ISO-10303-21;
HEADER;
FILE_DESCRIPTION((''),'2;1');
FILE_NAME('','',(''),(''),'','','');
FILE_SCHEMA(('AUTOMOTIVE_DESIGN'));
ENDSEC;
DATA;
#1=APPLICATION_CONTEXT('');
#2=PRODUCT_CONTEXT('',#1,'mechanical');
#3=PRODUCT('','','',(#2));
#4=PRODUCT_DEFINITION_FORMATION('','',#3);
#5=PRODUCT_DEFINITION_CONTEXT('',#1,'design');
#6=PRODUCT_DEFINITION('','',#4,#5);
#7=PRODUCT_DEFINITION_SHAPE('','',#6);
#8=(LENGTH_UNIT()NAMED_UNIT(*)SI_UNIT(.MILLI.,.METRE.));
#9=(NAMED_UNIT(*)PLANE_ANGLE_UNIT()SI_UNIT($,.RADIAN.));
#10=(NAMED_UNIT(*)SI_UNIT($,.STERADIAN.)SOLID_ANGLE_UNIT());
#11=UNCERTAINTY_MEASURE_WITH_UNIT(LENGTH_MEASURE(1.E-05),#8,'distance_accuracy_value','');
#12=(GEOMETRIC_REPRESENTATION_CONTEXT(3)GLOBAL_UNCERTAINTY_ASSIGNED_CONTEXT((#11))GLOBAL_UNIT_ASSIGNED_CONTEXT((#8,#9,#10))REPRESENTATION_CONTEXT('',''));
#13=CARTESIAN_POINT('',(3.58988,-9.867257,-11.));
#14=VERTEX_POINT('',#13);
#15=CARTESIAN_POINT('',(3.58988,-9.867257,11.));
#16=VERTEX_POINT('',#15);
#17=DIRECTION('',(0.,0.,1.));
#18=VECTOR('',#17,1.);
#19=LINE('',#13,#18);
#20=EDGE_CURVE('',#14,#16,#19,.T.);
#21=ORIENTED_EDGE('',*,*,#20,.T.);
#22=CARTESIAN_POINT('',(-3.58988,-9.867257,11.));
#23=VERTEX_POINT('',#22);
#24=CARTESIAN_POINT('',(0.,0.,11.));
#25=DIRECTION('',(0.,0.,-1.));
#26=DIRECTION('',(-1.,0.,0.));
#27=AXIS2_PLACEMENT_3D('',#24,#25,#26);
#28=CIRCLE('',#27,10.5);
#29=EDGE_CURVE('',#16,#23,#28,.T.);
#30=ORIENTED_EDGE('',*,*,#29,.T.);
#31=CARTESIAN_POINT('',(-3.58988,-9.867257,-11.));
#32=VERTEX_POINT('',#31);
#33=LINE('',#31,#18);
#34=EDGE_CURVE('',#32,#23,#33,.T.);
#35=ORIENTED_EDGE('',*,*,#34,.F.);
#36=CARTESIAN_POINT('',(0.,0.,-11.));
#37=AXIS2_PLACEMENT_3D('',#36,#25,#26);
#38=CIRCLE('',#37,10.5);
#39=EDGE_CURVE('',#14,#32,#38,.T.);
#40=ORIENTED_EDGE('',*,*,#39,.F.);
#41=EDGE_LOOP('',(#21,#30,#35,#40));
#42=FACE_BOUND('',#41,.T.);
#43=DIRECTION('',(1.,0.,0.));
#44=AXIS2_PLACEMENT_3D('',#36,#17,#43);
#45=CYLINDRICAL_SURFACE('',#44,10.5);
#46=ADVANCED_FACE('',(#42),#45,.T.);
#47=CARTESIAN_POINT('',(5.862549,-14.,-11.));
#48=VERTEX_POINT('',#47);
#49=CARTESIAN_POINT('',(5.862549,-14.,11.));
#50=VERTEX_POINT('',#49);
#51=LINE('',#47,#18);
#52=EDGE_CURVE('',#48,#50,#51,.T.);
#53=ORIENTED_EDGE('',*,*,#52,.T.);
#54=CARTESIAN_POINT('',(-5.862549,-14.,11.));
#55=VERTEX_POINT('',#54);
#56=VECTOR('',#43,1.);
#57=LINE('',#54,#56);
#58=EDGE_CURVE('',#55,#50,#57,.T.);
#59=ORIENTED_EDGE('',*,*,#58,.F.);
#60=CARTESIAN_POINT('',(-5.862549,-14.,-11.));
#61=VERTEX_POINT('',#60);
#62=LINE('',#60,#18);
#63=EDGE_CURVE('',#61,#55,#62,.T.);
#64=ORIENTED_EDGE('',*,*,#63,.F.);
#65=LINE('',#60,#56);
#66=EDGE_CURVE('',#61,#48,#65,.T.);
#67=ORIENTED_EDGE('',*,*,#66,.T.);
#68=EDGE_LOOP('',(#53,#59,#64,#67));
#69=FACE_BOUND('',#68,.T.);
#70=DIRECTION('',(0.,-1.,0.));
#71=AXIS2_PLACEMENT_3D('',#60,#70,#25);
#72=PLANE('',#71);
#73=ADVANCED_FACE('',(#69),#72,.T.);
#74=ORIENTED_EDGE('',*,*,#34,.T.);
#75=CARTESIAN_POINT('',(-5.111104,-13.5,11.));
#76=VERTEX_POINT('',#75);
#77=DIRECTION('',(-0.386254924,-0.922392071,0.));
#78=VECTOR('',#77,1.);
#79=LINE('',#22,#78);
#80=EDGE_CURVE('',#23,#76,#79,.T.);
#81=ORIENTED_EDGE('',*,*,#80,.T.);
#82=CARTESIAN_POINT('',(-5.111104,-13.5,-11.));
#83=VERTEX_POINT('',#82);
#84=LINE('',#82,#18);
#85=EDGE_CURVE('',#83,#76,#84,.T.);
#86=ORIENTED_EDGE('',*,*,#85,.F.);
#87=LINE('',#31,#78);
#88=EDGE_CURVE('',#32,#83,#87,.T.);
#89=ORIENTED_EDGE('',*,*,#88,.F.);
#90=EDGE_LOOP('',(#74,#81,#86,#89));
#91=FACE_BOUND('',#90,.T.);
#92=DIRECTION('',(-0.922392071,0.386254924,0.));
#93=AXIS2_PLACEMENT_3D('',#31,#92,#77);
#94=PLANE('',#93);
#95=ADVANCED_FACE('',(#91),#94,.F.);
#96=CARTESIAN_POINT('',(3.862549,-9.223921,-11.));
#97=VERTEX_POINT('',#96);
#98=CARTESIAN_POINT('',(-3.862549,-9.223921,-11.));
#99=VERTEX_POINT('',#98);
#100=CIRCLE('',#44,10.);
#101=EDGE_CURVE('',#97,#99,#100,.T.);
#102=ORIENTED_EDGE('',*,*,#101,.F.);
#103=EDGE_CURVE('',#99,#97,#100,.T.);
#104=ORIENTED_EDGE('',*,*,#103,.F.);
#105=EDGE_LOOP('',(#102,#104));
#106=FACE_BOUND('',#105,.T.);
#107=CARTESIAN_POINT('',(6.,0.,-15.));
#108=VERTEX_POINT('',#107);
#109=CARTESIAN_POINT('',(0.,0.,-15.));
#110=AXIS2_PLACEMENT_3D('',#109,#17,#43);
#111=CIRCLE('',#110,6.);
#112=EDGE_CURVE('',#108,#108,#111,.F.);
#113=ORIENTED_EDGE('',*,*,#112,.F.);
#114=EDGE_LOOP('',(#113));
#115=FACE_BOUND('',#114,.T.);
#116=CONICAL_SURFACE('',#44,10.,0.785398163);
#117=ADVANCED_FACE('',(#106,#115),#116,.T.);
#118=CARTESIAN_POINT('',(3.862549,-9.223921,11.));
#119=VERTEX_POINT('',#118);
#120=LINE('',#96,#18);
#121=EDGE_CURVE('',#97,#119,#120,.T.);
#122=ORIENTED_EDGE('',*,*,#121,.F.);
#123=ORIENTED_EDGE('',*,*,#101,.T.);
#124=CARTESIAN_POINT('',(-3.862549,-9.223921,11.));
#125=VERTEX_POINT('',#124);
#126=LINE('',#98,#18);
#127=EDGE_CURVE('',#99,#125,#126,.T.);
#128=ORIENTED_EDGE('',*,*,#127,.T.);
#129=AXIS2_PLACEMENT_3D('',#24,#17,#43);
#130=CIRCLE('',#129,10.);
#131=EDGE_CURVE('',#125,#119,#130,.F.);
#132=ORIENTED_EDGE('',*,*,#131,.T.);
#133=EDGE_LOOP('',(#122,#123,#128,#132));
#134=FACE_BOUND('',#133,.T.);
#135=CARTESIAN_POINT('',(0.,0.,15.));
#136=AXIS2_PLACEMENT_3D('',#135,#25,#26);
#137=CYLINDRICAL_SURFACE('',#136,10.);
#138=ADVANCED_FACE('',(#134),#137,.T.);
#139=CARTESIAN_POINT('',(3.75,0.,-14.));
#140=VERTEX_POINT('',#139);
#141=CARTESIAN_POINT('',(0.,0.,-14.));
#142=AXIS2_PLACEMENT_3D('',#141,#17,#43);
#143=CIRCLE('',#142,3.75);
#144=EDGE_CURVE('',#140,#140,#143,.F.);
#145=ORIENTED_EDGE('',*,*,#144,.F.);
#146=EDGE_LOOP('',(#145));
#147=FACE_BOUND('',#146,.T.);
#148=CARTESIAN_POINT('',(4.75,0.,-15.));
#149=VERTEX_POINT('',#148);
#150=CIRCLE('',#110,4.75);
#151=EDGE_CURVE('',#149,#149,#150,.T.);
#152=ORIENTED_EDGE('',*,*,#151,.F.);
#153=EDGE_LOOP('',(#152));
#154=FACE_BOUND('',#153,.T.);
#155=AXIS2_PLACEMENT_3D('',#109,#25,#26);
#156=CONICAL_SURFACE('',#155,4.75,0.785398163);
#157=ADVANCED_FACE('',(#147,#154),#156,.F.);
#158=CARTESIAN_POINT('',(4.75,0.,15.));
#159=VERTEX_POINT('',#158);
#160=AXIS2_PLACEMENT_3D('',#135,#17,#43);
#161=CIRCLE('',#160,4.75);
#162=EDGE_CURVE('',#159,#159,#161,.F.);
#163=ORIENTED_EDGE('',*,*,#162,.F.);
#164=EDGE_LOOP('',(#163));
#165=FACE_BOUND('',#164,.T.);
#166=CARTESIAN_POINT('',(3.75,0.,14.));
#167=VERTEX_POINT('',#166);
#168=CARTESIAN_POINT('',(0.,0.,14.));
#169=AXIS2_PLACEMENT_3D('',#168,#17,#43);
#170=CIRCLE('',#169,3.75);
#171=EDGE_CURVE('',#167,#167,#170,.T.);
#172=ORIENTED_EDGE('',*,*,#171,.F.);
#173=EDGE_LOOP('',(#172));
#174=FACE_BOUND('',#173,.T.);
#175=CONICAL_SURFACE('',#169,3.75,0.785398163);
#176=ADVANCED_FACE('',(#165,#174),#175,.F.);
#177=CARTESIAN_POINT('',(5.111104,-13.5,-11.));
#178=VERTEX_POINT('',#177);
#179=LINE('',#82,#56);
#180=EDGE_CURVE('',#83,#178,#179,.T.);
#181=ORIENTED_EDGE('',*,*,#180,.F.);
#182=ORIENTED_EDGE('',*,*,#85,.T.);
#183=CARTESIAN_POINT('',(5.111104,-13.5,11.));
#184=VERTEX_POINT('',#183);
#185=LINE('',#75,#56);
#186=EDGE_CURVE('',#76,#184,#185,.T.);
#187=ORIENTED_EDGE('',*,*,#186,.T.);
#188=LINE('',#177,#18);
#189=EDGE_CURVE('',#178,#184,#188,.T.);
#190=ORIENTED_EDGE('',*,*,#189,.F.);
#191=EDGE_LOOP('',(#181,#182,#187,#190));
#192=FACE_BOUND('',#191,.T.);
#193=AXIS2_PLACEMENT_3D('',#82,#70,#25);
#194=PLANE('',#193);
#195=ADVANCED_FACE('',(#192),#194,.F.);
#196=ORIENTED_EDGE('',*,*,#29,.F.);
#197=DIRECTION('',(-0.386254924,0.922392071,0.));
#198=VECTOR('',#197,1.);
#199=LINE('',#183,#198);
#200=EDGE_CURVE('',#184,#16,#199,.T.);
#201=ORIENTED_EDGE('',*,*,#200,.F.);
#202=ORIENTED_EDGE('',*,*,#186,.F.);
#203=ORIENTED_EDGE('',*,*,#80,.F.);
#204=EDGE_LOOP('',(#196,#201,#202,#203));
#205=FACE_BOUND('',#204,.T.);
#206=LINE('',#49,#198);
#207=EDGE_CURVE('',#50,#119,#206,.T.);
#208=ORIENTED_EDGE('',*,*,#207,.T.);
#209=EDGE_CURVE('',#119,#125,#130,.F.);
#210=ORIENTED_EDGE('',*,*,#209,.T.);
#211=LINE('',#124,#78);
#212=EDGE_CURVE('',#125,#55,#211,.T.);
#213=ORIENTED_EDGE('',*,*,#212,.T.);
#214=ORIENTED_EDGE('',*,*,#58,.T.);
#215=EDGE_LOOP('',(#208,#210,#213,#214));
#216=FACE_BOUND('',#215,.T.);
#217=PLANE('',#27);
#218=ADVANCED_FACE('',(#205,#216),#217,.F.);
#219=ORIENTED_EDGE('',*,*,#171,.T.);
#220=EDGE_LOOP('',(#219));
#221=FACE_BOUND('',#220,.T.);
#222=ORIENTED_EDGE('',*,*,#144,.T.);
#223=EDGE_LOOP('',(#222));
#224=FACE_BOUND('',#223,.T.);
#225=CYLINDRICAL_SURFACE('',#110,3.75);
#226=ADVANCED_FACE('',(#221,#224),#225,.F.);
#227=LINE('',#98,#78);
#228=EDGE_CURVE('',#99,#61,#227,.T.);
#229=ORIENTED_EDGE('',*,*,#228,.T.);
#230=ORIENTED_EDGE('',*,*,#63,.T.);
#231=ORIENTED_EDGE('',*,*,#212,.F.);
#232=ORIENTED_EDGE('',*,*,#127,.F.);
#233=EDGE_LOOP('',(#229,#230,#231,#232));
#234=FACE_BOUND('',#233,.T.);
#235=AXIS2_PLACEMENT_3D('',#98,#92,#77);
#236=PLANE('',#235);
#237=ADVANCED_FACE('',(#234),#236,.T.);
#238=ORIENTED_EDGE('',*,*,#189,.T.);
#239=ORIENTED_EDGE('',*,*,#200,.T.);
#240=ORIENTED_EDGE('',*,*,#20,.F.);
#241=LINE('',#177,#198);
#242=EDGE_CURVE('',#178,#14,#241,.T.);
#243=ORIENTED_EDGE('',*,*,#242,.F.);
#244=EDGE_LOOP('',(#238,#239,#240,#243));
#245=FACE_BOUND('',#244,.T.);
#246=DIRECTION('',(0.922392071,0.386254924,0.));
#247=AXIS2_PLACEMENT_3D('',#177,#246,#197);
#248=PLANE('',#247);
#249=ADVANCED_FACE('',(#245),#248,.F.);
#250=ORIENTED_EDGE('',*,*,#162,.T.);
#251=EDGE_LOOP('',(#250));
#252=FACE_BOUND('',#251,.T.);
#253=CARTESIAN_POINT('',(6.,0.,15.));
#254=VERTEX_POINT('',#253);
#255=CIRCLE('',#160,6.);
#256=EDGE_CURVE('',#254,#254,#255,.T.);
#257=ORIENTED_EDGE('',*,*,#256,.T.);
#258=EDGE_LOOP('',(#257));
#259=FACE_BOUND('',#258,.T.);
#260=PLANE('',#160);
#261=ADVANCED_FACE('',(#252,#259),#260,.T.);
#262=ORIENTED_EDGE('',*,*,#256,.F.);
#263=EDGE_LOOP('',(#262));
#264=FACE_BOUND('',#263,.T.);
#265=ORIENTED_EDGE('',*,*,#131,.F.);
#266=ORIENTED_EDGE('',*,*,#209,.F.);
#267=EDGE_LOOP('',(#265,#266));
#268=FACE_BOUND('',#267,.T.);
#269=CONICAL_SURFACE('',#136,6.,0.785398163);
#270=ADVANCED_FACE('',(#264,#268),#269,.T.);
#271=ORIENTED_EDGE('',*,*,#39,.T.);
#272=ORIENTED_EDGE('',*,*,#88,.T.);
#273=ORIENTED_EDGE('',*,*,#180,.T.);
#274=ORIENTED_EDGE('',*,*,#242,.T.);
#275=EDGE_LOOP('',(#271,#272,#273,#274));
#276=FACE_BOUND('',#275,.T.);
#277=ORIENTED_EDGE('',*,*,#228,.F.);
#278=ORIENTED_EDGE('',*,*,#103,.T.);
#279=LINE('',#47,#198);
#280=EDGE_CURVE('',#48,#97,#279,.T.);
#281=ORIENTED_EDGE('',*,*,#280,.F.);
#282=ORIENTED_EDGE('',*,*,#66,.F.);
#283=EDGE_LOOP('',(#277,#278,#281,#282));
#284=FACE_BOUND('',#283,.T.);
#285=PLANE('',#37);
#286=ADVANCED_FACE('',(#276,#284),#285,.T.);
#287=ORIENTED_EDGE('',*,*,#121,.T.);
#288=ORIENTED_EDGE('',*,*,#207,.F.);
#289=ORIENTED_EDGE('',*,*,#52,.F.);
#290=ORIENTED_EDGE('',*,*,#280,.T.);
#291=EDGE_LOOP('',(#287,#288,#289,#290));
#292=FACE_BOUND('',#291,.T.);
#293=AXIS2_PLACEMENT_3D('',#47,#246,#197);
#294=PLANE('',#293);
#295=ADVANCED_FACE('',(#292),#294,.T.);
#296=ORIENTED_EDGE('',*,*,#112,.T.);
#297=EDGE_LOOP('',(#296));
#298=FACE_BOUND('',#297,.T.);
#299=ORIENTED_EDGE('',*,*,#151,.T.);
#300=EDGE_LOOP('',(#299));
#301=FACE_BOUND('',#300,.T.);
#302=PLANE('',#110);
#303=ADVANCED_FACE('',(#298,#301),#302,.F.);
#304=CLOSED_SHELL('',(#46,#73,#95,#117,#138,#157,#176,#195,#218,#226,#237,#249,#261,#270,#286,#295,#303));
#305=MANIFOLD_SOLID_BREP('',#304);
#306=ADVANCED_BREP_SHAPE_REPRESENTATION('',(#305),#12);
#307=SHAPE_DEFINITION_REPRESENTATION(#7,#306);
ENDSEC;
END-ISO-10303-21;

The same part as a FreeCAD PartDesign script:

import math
import FreeCAD as App
import Part
import Sketcher

V = App.Vector
Q = App.Units.Quantity


def edges_at(feature, points):
    """Names of the edges that pass closest to the given points."""
    edges = feature.Shape.Edges
    near = lambda p: min(range(len(edges)), key=lambda i: edges[i].distToShape(Part.Vertex(*p))[0])
    return sorted({f"Edge{near(p) + 1}" for p in points})

doc = App.newDocument("Part")
body = doc.addObject("PartDesign::Body", "Body")

sketch1 = body.newObject("Sketcher::SketchObject", "Sketch")
sketch1.AttachmentSupport = (doc.getObject("XY_Plane"), [""])
sketch1.MapMode = "FlatFace"
sketch1.addGeometry(Part.Circle(V(0, 0, 0), V(0, 0, 1), 10), False)
sketch1.addConstraint([
    Sketcher.Constraint("Coincident", 0, 3, -1, 1),
    Sketcher.Constraint("Diameter", 0, Q("20 mm")),
])
pad1 = body.newObject("PartDesign::Pad", "Pad")
pad1.Profile = sketch1
pad1.Length = 30
pad1.Midplane = True
doc.recompute()

chamfer = body.newObject("PartDesign::Chamfer", "Chamfer")
chamfer.Base = (pad1, edges_at(pad1, [(-10, 0, -15), (-10, 0, 15)]))
chamfer.Size = 4

sketch2 = body.newObject("Sketcher::SketchObject", "Sketch001")
sketch2.AttachmentSupport = (doc.getObject("XY_Plane"), [""])
sketch2.MapMode = "FlatFace"
sketch2.AttachmentOffset = App.Placement(V(0, 0, 15), App.Rotation())
sketch2.addGeometry(Part.Circle(V(0, 0, 0), V(0, 0, 1), 3.8), False)
sketch2.addConstraint([
    Sketcher.Constraint("Coincident", 0, 3, -1, 1),
    Sketcher.Constraint("Diameter", 0, Q("7.5 mm")),
])
pocket1 = body.newObject("PartDesign::Pocket", "Pocket")
pocket1.Profile = sketch2
pocket1.Type = "ThroughAll"
doc.recompute()

chamfer2 = body.newObject("PartDesign::Chamfer", "Chamfer001")
chamfer2.Base = (pocket1, edges_at(pocket1, [(-3.75, 0, -15), (-3.75, 0, 15)]))
chamfer2.Size = 1

sketch3 = body.newObject("Sketcher::SketchObject", "Sketch002")
sketch3.AttachmentSupport = (doc.getObject("XY_Plane"), [""])
sketch3.MapMode = "FlatFace"
sketch3.AttachmentOffset = App.Placement(V(0, 0, 11), App.Rotation())
sketch3.addGeometry([
    Part.LineSegment(V(-3.9, -9.2, 0), V(-5.9, -14, 0)),
    Part.LineSegment(V(-5.9, -14, 0), V(5.9, -14, 0)),
    Part.LineSegment(V(5.9, -14, 0), V(3.9, -9.2, 0)),
    Part.ArcOfCircle(Part.Circle(V(0, 0, 0), V(0, 0, 1), 10), math.radians(-113), math.radians(-67)),
    Part.LineSegment(V(-5.1, -13.5, 0), V(-3.6, -9.9, 0)),
    Part.ArcOfCircle(Part.Circle(V(0, 0, 0), V(0, 0, 1), 10.5), math.radians(-110), math.radians(-70)),
    Part.LineSegment(V(3.6, -9.9, 0), V(5.1, -13.5, 0)),
    Part.LineSegment(V(5.1, -13.5, 0), V(-5.1, -13.5, 0)),
], False)
sketch3.addConstraint([
    Sketcher.Constraint("Coincident", 0, 2, 1, 1),
    Sketcher.Constraint("Coincident", 1, 2, 2, 1),
    Sketcher.Constraint("Coincident", 2, 2, 3, 2),
    Sketcher.Constraint("Coincident", 3, 1, 0, 1),
    Sketcher.Constraint("Coincident", 4, 2, 5, 1),
    Sketcher.Constraint("Coincident", 5, 2, 6, 1),
    Sketcher.Constraint("Coincident", 6, 2, 7, 1),
    Sketcher.Constraint("Coincident", 7, 2, 4, 1),
    Sketcher.Constraint("Horizontal", 1),
    Sketcher.Constraint("Horizontal", 7),
    Sketcher.Constraint("Coincident", 3, 3, -1, 1),
    Sketcher.Constraint("Coincident", 5, 3, -1, 1),
    Sketcher.Constraint("Parallel", 0, 4),
    Sketcher.Constraint("Parallel", 2, 6),
    Sketcher.Constraint("Horizontal", 2, 2, 3, 1),
    Sketcher.Constraint("Horizontal", 4, 2, 5, 2),
    Sketcher.Constraint("Equal", 0, 2),
    Sketcher.Constraint("Radius", 3, Q("10 mm")),
    Sketcher.Constraint("Radius", 5, Q("10.5 mm")),
    Sketcher.Constraint("DistanceY", 0, 2, -1, 1, Q("14 mm")),
    Sketcher.Constraint("DistanceX", 2, 2, 1, 2, Q("2 mm")),
    Sketcher.Constraint("DistanceY", 6, 2, -1, 1, Q("13.5 mm")),
    Sketcher.Constraint("DistanceX", 1, 1, 1, 2, Q("11.725098 mm")),
    Sketcher.Constraint("DistanceX", 7, 2, 7, 1, Q("10.222207 mm")),
])
pad2 = body.newObject("PartDesign::Pad", "Pad001")
pad2.Profile = sketch3
pad2.Length = 22
pad2.Reversed = True

doc.recompute()
